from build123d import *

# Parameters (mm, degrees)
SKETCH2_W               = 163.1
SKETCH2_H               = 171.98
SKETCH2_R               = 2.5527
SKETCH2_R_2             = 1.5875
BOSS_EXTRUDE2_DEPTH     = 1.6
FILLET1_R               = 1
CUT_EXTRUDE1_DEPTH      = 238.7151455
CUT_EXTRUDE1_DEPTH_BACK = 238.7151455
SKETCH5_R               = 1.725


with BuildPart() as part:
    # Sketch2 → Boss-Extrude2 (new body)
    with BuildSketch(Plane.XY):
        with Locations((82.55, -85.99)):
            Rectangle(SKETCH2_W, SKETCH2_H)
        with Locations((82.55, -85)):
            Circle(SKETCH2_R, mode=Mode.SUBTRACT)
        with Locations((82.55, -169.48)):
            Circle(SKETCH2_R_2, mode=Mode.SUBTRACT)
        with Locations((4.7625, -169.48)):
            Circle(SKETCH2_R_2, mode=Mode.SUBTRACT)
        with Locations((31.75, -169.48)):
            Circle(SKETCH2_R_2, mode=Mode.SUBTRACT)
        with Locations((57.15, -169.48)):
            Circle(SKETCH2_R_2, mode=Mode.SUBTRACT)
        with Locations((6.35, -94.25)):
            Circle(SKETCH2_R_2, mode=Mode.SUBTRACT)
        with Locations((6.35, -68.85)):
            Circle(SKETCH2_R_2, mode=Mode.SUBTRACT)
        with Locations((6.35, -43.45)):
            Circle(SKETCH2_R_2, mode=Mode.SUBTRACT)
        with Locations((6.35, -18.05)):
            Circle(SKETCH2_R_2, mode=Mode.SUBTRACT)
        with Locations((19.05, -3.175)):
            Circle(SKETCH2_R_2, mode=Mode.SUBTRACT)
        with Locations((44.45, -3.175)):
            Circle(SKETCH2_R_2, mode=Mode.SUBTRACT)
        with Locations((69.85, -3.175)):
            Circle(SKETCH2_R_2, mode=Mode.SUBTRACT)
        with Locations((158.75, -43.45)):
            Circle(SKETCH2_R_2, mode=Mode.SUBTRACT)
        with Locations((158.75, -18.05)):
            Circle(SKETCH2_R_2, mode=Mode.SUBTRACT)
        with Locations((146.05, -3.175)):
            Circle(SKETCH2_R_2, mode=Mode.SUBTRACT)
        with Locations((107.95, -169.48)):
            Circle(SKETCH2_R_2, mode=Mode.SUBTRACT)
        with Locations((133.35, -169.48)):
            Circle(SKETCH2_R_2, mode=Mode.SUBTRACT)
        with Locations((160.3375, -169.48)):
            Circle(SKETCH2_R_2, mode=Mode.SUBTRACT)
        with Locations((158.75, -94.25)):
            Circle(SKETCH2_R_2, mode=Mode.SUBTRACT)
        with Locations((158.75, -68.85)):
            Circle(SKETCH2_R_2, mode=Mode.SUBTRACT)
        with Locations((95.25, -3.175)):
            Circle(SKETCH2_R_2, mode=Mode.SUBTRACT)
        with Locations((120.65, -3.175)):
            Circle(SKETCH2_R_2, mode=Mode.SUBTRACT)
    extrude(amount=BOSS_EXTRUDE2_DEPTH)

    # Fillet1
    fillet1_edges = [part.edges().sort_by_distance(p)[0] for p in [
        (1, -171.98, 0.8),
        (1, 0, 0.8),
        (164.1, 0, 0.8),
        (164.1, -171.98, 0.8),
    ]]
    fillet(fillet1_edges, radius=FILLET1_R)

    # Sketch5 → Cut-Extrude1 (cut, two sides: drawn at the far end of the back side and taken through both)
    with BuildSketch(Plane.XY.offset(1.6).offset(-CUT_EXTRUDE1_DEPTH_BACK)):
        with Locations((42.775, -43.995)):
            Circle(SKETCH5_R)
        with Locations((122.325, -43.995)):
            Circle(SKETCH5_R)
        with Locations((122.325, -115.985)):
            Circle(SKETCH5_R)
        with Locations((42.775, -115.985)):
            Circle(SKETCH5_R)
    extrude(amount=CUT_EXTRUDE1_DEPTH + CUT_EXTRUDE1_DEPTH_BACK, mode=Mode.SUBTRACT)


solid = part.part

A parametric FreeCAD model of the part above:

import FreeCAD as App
import Part
import Sketcher

V = App.Vector
Q = App.Units.Quantity


def edges_at(feature, points):
    """Names of the edges that pass closest to the given points."""
    edges = feature.Shape.Edges
    near = lambda p: min(range(len(edges)), key=lambda i: edges[i].distToShape(Part.Vertex(*p))[0])
    return sorted({f"Edge{near(p) + 1}" for p in points})


def add_polygon(sketch, points):
    """Adds a closed chain of lines whose ends are joined by coincident constraints."""
    first, n = sketch.GeometryCount, len(points)
    for a, b in zip(points, points[1:] + points[:1]):
        sketch.addGeometry(Part.LineSegment(App.Vector(*a, 0), App.Vector(*b, 0)), False)
    for i in range(n):
        sketch.addConstraint(Sketcher.Constraint("Coincident", first + i, 2, first + (i + 1) % n, 1))

doc = App.newDocument("Part")
body = doc.addObject("PartDesign::Body", "Body")

# Sketch on XY plane
sketch1 = doc.addObject("Sketcher::SketchObject", "Sketch")
body.addObject(sketch1)
sketch1.AttachmentSupport = (doc.XY_Plane, [""])
sketch1.MapMode = "FlatFace"
add_polygon(sketch1, [(1, 0), (1, -172), (164.1, -172), (164.1, 0)])  # lines 0-3
sketch1.addGeometry(Part.Circle(V(4.8, -169.5, 0), V(0, 0, 1), 1.6), False)  # 4
sketch1.addGeometry(Part.Circle(V(31.8, -169.5, 0), V(0, 0, 1), 1.6), False)  # 5
sketch1.addGeometry(Part.Circle(V(57.1, -169.5, 0), V(0, 0, 1), 1.6), False)  # 6
sketch1.addGeometry(Part.Circle(V(6.3, -94.2, 0), V(0, 0, 1), 1.6), False)  # 7
sketch1.addGeometry(Part.Circle(V(82.5, -169.5, 0), V(0, 0, 1), 1.6), False)  # 8
sketch1.addGeometry(Part.Circle(V(108, -169.5, 0), V(0, 0, 1), 1.6), False)  # 9
sketch1.addGeometry(Part.Circle(V(133.3, -169.5, 0), V(0, 0, 1), 1.6), False)  # 10
sketch1.addGeometry(Part.Circle(V(160.3, -169.5, 0), V(0, 0, 1), 1.6), False)  # 11
sketch1.addGeometry(Part.Circle(V(158.8, -94.2, 0), V(0, 0, 1), 1.6), False)  # 12
sketch1.addGeometry(Part.Circle(V(6.3, -68.8, 0), V(0, 0, 1), 1.6), False)  # 13
sketch1.addGeometry(Part.Circle(V(6.3, -43.5, 0), V(0, 0, 1), 1.6), False)  # 14
sketch1.addGeometry(Part.Circle(V(6.3, -18.1, 0), V(0, 0, 1), 1.6), False)  # 15
sketch1.addGeometry(Part.Circle(V(19.1, -3.2, 0), V(0, 0, 1), 1.6), False)  # 16
sketch1.addGeometry(Part.Circle(V(44.5, -3.2, 0), V(0, 0, 1), 1.6), False)  # 17
sketch1.addGeometry(Part.Circle(V(69.8, -3.2, 0), V(0, 0, 1), 1.6), False)  # 18
sketch1.addGeometry(Part.Circle(V(82.5, -85, 0), V(0, 0, 1), 2.6), False)  # 19
sketch1.addGeometry(Part.Circle(V(158.8, -68.8, 0), V(0, 0, 1), 1.6), False)  # 20
sketch1.addGeometry(Part.Circle(V(95.2, -3.2, 0), V(0, 0, 1), 1.6), False)  # 21
sketch1.addGeometry(Part.Circle(V(120.7, -3.2, 0), V(0, 0, 1), 1.6), False)  # 22
sketch1.addGeometry(Part.Circle(V(158.8, -43.5, 0), V(0, 0, 1), 1.6), False)  # 23
sketch1.addGeometry(Part.Circle(V(158.8, -18.1, 0), V(0, 0, 1), 1.6), False)  # 24
sketch1.addGeometry(Part.Circle(V(146.1, -3.2, 0), V(0, 0, 1), 1.6), False)  # 25
sketch1.addConstraint([
    Sketcher.Constraint("Vertical", 0),
    Sketcher.Constraint("Horizontal", 1),
    Sketcher.Constraint("Vertical", 2),
    Sketcher.Constraint("Horizontal", 3),
    Sketcher.Constraint("Equal", 4, 5),
    Sketcher.Constraint("Equal", 5, 6),
    Sketcher.Constraint("Equal", 6, 7),
    Sketcher.Constraint("Equal", 7, 8),
    Sketcher.Constraint("Equal", 8, 9),
    Sketcher.Constraint("Equal", 9, 10),
    Sketcher.Constraint("Equal", 10, 11),
    Sketcher.Constraint("Equal", 11, 12),
    Sketcher.Constraint("Equal", 12, 13),
    Sketcher.Constraint("Equal", 13, 14),
    Sketcher.Constraint("Equal", 14, 15),
    Sketcher.Constraint("Equal", 15, 16),
    Sketcher.Constraint("Equal", 16, 17),
    Sketcher.Constraint("Equal", 17, 18),
    Sketcher.Constraint("Equal", 18, 20),
    Sketcher.Constraint("Equal", 20, 21),
    Sketcher.Constraint("Equal", 21, 22),
    Sketcher.Constraint("Equal", 22, 23),
    Sketcher.Constraint("Equal", 23, 24),
    Sketcher.Constraint("Equal", 24, 25),
    Sketcher.Constraint("PointOnObject", 2, 2, -1),
    Sketcher.Constraint("Horizontal", 4, 3, 5, 3),
    Sketcher.Constraint("Horizontal", 5, 3, 6, 3),
    Sketcher.Constraint("Horizontal", 6, 3, 8, 3),
    Sketcher.Constraint("Horizontal", 8, 3, 9, 3),
    Sketcher.Constraint("Horizontal", 9, 3, 10, 3),
    Sketcher.Constraint("Horizontal", 10, 3, 11, 3),
    Sketcher.Constraint("Horizontal", 7, 3, 12, 3),
    Sketcher.Constraint("Horizontal", 16, 3, 17, 3),
    Sketcher.Constraint("Horizontal", 17, 3, 18, 3),
    Sketcher.Constraint("Horizontal", 13, 3, 20, 3),
    Sketcher.Constraint("Horizontal", 18, 3, 21, 3),
    Sketcher.Constraint("Horizontal", 21, 3, 22, 3),
    Sketcher.Constraint("Horizontal", 14, 3, 23, 3),
    Sketcher.Constraint("Horizontal", 15, 3, 24, 3),
    Sketcher.Constraint("Horizontal", 22, 3, 25, 3),
    Sketcher.Constraint("Vertical", 7, 3, 13, 3),
    Sketcher.Constraint("Vertical", 13, 3, 14, 3),
    Sketcher.Constraint("Vertical", 14, 3, 15, 3),
    Sketcher.Constraint("Vertical", 8, 3, 19, 3),
    Sketcher.Constraint("Vertical", 12, 3, 20, 3),
    Sketcher.Constraint("Vertical", 20, 3, 23, 3),
    Sketcher.Constraint("Vertical", 23, 3, 24, 3),
    Sketcher.Constraint("Diameter", 4, Q("3.175 mm")),
    Sketcher.Constraint("DistanceX", 1, 1, 1, 2, Q("163.1 mm")),
    Sketcher.Constraint("DistanceY", 19, 3, -1, 1, Q("85 mm")),
    Sketcher.Constraint("DistanceX", -1, 1, 0, 2, Q("1 mm")),
    Sketcher.Constraint("Diameter", 19, Q("5.1054 mm")),
    Sketcher.Constraint("DistanceY", 0, 2, 0, 1, Q("171.98 mm")),
    Sketcher.Constraint("DistanceX", 5, 3, 6, 3, Q("25.4 mm")),
    Sketcher.Constraint("DistanceX", 7, 3, 5, 3, Q("25.4 mm")),
    Sketcher.Constraint("DistanceX", 6, 3, 8, 3, Q("25.4 mm")),
    Sketcher.Constraint("DistanceX", 8, 3, 9, 3, Q("25.4 mm")),
    Sketcher.Constraint("DistanceX", 9, 3, 10, 3, Q("25.4 mm")),
    Sketcher.Constraint("DistanceX", 10, 3, 12, 3, Q("25.4 mm")),
    Sketcher.Constraint("DistanceY", 7, 3, 13, 3, Q("25.4 mm")),
    Sketcher.Constraint("DistanceY", 13, 3, 14, 3, Q("25.4 mm")),
    Sketcher.Constraint("DistanceY", 14, 3, 15, 3, Q("25.4 mm")),
    Sketcher.Constraint("DistanceX", 15, 3, 16, 3, Q("12.7 mm")),
    Sketcher.Constraint("DistanceX", 16, 3, 17, 3, Q("25.4 mm")),
    Sketcher.Constraint("DistanceX", 17, 3, 18, 3, Q("25.4 mm")),
    Sketcher.Constraint("DistanceX", 18, 3, 21, 3, Q("25.4 mm")),
    Sketcher.Constraint("DistanceX", 21, 3, 22, 3, Q("25.4 mm")),
    Sketcher.Constraint("DistanceX", 25, 3, 24, 3, Q("12.7 mm")),
    Sketcher.Constraint("DistanceY", 0, 2, 4, 3, Q("2.5 mm")),
    Sketcher.Constraint("DistanceX", -1, 1, 5, 3, Q("31.75 mm")),
    Sketcher.Constraint("DistanceY", 7, 3, -1, 1, Q("94.25 mm")),
    Sketcher.Constraint("DistanceY", 16, 3, -1, 1, Q("3.175 mm")),
    Sketcher.Constraint("DistanceX", -1, 1, 4, 3, Q("4.7625 mm")),
    Sketcher.Constraint("DistanceX", -1, 1, 11, 3, Q("160.3375 mm")),
])
pad1 = doc.addObject("PartDesign::Pad", "Pad")
body.addObject(pad1)
pad1.Profile = sketch1
pad1.Length = 1.6
doc.recompute()

fillet = doc.addObject("PartDesign::Fillet", "Fillet")
body.addObject(fillet)
fillet.Base = (pad1, edges_at(pad1, [
    (1, -171.98, 0.8),
    (1, 0, 0.8),
    (164.1, 0, 0.8),
    (164.1, -171.98, 0.8),
]))
fillet.Radius = 1

# Sketch on XY plane
sketch2 = doc.addObject("Sketcher::SketchObject", "Sketch001")
body.addObject(sketch2)
sketch2.AttachmentSupport = (doc.XY_Plane, [""])
sketch2.MapMode = "FlatFace"
sketch2.AttachmentOffset = App.Placement(V(0, 0, 1.6), App.Rotation())
sketch2.addGeometry([
    Part.Circle(V(42.8, -44, 0), V(0, 0, 1), 1.7),
    Part.Circle(V(122.3, -44, 0), V(0, 0, 1), 1.7),
    Part.Circle(V(122.3, -116, 0), V(0, 0, 1), 1.7),
    Part.Circle(V(42.8, -116, 0), V(0, 0, 1), 1.7),
], False)
sketch2.addConstraint([
    Sketcher.Constraint("Equal", 0, 1),
    Sketcher.Constraint("Equal", 1, 2),
    Sketcher.Constraint("Equal", 2, 3),
    Sketcher.Constraint("Horizontal", 0, 3, 1, 3),
    Sketcher.Constraint("Horizontal", 2, 3, 3, 3),
    Sketcher.Constraint("Vertical", 1, 3, 2, 3),
    Sketcher.Constraint("Vertical", 0, 3, 3, 3),
    Sketcher.Constraint("Diameter", 0, Q("3.45 mm")),
    Sketcher.Constraint("DistanceX", 0, 3, 1, 3, Q("79.55 mm")),
    Sketcher.Constraint("DistanceY", 2, 3, 1, 3, Q("71.99 mm")),
    Sketcher.Constraint("DistanceX", -1, 1, 0, 3, Q("42.775 mm")),
    Sketcher.Constraint("DistanceY", 0, 3, -1, 1, Q("43.995 mm")),
])
pocket1 = doc.addObject("PartDesign::Pocket", "Pocket")
body.addObject(pocket1)
pocket1.Profile = sketch2
pocket1.Type = "ThroughAll"
pocket1.Midplane = True

doc.recompute()
